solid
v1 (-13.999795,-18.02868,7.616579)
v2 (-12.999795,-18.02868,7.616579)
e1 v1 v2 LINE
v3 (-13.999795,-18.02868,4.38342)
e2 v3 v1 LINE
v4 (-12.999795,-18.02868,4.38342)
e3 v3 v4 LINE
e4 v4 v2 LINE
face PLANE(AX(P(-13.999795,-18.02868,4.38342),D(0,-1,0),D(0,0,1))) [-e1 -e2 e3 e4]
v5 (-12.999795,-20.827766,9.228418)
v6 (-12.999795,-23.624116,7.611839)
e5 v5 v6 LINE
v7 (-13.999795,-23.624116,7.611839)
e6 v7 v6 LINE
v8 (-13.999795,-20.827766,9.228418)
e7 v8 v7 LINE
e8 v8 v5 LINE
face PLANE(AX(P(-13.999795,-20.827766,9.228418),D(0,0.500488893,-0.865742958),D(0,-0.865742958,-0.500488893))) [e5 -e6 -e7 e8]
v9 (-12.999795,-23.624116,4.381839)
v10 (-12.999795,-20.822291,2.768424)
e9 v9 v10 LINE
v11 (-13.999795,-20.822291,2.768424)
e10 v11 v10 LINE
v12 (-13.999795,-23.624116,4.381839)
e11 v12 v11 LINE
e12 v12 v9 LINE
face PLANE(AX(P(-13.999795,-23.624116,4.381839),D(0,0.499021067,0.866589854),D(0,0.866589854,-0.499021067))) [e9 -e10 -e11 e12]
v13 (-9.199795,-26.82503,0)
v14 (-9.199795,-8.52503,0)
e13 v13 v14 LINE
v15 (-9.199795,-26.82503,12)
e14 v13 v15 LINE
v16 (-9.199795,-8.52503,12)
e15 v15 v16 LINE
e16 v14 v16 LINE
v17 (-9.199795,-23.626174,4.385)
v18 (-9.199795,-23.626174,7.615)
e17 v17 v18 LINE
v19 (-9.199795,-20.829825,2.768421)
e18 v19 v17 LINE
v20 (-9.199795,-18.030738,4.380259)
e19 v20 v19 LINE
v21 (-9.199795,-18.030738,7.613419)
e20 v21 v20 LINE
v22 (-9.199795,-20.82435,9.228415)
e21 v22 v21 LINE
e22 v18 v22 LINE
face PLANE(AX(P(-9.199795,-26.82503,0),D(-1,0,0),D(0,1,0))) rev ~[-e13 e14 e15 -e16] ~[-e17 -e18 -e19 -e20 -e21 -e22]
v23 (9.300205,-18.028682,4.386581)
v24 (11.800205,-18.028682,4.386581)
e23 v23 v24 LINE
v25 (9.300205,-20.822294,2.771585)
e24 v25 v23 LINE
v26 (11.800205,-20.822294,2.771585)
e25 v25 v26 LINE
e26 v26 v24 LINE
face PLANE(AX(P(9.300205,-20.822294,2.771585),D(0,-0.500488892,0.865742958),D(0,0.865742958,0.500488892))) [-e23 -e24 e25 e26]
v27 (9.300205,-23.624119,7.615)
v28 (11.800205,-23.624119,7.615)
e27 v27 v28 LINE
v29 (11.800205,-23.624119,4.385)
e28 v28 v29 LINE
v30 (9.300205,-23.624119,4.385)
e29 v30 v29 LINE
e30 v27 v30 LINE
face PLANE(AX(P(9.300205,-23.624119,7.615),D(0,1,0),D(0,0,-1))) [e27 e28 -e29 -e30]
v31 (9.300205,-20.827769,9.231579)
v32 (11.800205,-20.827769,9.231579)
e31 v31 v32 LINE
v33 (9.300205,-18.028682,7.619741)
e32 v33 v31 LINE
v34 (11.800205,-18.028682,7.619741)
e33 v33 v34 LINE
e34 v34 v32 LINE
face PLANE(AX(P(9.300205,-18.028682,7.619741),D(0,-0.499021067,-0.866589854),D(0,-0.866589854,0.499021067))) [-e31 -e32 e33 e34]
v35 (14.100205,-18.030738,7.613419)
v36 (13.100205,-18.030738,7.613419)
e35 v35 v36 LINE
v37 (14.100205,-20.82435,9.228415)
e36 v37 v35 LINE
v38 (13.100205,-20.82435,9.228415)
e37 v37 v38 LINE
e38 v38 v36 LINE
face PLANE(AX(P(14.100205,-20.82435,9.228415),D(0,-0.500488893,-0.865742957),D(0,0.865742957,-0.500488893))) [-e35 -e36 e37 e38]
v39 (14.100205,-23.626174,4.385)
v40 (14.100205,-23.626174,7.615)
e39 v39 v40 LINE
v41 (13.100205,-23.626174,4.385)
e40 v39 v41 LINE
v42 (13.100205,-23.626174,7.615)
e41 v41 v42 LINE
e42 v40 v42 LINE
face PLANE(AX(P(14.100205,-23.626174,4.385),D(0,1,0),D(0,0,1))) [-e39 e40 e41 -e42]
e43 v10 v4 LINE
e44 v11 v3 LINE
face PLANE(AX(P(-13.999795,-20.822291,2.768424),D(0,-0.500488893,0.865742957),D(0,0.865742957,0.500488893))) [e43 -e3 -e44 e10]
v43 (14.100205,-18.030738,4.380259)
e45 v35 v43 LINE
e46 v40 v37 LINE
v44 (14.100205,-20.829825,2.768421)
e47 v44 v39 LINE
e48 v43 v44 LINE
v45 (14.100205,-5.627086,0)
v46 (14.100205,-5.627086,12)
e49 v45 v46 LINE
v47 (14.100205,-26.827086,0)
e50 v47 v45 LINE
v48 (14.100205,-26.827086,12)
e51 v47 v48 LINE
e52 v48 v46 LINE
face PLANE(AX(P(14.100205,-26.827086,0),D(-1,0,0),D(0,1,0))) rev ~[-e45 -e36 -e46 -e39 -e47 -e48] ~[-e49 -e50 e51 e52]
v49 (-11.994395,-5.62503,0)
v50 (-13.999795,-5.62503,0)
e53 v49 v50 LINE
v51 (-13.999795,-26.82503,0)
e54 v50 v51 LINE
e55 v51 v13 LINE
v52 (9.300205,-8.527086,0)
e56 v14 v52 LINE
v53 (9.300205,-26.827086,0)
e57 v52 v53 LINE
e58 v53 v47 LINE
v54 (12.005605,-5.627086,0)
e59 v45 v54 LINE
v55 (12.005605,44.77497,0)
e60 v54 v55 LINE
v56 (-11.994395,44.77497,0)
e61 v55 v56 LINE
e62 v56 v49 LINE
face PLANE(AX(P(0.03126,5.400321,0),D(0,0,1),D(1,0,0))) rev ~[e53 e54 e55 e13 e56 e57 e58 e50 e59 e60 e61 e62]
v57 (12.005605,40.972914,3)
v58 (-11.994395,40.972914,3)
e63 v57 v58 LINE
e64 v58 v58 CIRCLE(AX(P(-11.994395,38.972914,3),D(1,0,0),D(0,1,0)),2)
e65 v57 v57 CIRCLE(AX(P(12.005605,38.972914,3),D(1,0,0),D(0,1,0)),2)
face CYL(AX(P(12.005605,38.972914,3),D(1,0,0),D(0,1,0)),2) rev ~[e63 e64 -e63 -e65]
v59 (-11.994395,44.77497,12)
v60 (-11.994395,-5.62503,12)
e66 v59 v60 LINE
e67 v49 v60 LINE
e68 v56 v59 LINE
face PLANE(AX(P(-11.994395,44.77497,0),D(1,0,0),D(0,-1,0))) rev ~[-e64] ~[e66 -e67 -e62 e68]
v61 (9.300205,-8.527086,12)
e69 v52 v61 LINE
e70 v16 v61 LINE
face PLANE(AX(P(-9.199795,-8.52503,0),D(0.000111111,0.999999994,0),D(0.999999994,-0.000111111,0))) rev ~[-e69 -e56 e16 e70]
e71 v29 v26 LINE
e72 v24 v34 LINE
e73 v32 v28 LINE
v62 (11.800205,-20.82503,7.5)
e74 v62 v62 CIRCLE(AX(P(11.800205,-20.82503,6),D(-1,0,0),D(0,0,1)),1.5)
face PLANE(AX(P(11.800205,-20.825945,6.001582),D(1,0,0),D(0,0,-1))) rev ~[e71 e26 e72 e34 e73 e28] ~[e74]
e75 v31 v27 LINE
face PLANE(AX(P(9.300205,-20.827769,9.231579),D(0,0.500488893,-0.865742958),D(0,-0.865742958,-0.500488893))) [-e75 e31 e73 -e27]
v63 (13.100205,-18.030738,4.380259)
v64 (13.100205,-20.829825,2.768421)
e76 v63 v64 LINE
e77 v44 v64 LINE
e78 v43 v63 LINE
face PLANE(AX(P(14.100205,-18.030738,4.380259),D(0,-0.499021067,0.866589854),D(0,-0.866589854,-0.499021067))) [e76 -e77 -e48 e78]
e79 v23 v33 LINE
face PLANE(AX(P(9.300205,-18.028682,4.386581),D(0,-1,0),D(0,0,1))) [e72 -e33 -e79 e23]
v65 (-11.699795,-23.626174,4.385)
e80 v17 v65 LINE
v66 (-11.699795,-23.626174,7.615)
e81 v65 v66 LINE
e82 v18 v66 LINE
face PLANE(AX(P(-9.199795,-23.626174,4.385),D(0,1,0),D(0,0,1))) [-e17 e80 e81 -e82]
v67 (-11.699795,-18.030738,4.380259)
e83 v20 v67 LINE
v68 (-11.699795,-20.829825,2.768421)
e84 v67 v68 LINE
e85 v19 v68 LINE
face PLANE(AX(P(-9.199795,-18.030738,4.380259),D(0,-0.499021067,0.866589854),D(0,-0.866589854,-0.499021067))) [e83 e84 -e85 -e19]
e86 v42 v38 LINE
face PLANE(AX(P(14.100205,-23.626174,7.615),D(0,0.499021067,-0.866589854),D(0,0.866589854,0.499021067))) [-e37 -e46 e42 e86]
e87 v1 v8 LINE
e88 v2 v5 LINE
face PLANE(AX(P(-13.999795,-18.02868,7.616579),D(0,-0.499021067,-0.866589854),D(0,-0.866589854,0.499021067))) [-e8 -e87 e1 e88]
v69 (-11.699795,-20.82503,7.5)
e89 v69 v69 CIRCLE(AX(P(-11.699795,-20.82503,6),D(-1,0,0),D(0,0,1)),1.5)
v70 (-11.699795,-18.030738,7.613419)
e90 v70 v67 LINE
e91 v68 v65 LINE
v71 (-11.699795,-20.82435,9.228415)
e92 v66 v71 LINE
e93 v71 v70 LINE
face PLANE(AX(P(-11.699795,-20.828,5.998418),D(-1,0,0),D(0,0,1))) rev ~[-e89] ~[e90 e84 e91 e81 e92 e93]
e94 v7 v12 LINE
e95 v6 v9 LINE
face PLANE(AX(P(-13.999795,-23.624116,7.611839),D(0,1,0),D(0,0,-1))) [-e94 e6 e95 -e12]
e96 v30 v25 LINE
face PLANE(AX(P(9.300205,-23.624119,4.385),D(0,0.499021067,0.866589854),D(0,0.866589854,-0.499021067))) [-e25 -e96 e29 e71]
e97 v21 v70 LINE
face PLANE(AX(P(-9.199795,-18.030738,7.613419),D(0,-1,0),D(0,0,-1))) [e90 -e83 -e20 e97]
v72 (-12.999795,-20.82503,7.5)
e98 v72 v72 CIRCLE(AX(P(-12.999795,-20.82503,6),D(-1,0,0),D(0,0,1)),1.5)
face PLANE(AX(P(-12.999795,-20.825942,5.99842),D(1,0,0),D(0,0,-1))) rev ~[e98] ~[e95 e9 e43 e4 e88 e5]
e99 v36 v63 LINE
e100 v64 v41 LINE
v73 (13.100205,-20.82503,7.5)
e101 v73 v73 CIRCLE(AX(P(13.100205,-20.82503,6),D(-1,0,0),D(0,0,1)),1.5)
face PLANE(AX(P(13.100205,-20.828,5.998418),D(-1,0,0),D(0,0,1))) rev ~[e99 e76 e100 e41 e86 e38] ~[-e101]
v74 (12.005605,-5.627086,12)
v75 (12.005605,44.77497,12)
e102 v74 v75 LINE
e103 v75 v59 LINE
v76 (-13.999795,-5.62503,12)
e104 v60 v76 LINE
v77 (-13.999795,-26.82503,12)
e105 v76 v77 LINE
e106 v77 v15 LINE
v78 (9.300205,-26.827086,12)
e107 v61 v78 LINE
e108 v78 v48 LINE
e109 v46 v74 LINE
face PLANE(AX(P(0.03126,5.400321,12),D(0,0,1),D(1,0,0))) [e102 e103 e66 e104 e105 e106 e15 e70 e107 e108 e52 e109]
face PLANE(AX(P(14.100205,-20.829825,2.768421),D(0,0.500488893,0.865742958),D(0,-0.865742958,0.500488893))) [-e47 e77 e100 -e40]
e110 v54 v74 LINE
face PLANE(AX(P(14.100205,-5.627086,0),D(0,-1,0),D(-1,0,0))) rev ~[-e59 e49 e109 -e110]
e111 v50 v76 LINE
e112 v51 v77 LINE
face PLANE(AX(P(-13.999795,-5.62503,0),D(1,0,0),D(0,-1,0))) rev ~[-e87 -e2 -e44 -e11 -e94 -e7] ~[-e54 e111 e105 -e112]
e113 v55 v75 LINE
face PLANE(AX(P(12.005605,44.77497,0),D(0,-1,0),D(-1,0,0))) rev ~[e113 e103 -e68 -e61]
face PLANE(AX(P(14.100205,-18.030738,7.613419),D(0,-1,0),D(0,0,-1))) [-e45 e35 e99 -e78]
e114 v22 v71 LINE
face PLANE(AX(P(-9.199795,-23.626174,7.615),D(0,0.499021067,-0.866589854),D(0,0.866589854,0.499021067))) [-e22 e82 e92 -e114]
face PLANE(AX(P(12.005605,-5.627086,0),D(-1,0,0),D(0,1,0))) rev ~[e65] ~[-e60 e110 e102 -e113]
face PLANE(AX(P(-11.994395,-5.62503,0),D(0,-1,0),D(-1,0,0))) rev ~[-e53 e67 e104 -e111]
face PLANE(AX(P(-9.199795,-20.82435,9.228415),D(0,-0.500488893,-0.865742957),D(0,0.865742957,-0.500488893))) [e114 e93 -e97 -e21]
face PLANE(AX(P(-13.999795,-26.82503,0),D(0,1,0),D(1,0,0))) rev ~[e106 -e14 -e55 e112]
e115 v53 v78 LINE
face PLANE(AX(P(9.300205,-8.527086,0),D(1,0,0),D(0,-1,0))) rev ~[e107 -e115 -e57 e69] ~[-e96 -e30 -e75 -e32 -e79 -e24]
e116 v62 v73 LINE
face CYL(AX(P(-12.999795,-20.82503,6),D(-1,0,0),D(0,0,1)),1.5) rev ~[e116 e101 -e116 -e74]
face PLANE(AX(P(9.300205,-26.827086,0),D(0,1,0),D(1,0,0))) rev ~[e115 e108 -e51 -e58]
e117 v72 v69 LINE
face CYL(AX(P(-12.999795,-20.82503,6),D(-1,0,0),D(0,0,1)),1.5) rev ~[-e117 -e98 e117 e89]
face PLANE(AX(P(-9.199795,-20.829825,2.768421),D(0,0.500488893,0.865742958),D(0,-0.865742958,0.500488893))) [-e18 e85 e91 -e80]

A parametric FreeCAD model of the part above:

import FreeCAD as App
import Part
import Sketcher
from FreeCAD import Vector


def add_polygon(sketch, points):
    """Adds a closed chain of lines whose ends are joined by coincident constraints."""
    first, n = sketch.GeometryCount, len(points)
    for a, b in zip(points, points[1:] + points[:1]):
        sketch.addGeometry(Part.LineSegment(App.Vector(*a, 0), App.Vector(*b, 0)), False)
    for i in range(n):
        sketch.addConstraint(Sketcher.Constraint("Coincident", first + i, 2, first + (i + 1) % n, 1))

doc = App.newDocument("Part")
body = doc.addObject("PartDesign::Body", "Body")

sketch1 = doc.addObject("Sketcher::SketchObject", "Sketch")
body.addObject(sketch1)
sketch1.AttachmentSupport = (doc.XY_Plane, [""])
sketch1.MapMode = "FlatFace"
add_polygon(sketch1, [(-12, 44.8), (-12, -5.6), (-14, -5.6), (-14, -26.8), (-9.2, -26.8), (-9.2, -8.5), (9.3, -8.5), (9.3, -26.8), (14.1, -26.8), (14.1, -5.6), (12, -5.6), (12, 44.8)])
sketch1.addConstraint([
    Sketcher.Constraint("Vertical", 0),
    Sketcher.Constraint("Horizontal", 1),
    Sketcher.Constraint("Vertical", 2),
    Sketcher.Constraint("Horizontal", 3),
    Sketcher.Constraint("Vertical", 4),
    Sketcher.Constraint("Vertical", 6),
    Sketcher.Constraint("Horizontal", 7),
    Sketcher.Constraint("Vertical", 8),
    Sketcher.Constraint("Horizontal", 9),
    Sketcher.Constraint("Vertical", 10),
    Sketcher.Constraint("Horizontal", 11),
    Sketcher.Constraint("Equal", 3, 7),
    Sketcher.Constraint("Equal", 4, 6),
    Sketcher.Constraint("Equal", 2, 8),
    Sketcher.Constraint("DistanceX", 11, 2, 11, 1, 24.0),
    Sketcher.Constraint("DistanceX", 3, 1, 3, 2, 4.8),
    Sketcher.Constraint("DistanceY", 0, 2, 0, 1, 50.4),
    Sketcher.Constraint("DistanceY", 2, 2, 2, 1, 21.2),
    Sketcher.Constraint("DistanceY", 4, 1, 4, 2, 18.3),
    Sketcher.Constraint("Distance", 5, 18.5),
    Sketcher.Constraint("DistanceX", 1, 2, 1, 1, 2.0054),
    Sketcher.Constraint("DistanceY", 10, 1, 10, 2, 50.402056),
    Sketcher.Constraint("DistanceY", 0, 2, -1, 1, 5.62503),
    Sketcher.Constraint("DistanceX", 0, 2, -1, 1, 11.994395),
])
pad1 = doc.addObject("PartDesign::Pad", "Pad")
body.addObject(pad1)
pad1.Profile = sketch1
pad1.Length = 12

sketch2 = doc.addObject("Sketcher::SketchObject", "Sketch001")
body.addObject(sketch2)
sketch2.AttachmentSupport = (doc.YZ_Plane, [""])
sketch2.MapMode = "FlatFace"
sketch2.AttachmentOffset = App.Placement(Vector(0, 0, 14.100205), App.Rotation())
add_polygon(sketch2, [(-23.6, 7.6), (-23.6, 4.4), (-20.8, 2.8), (-18, 4.4), (-18, 7.6), (-20.8, 9.2)])
sketch2.addConstraint([
    Sketcher.Constraint("Vertical", 0),
    Sketcher.Constraint("Vertical", 3),
    Sketcher.Constraint("Parallel", 1, 4),
    Sketcher.Constraint("Parallel", 2, 5),
    Sketcher.Constraint("Equal", 1, 2),
    Sketcher.Constraint("DistanceY", 0, 2, 0, 1, 3.23),
    Sketcher.Constraint("Distance", 1, 3.23),
    Sketcher.Constraint("DistanceY", -1, 1, 0, 2, 4.385),
    Sketcher.Constraint("DistanceY", 1, 2, 3, 2, 4.844998),
    Sketcher.Constraint("DistanceY", 3, 1, 3, 2, 3.23316),
    Sketcher.Constraint("DistanceY", -1, 1, 1, 2, 2.768421),
    Sketcher.Constraint("DistanceX", 2, 2, -1, 1, 18.030738),
])
pocket1 = doc.addObject("PartDesign::Pocket", "Pocket")
body.addObject(pocket1)
pocket1.Profile = sketch2
pocket1.Length = 1

sketch3 = doc.addObject("Sketcher::SketchObject", "Sketch002")
body.addObject(sketch3)
sketch3.AttachmentSupport = (doc.YZ_Plane, [""])
sketch3.MapMode = "FlatFace"
sketch3.AttachmentOffset = App.Placement(Vector(0, 0, -13.999795), App.Rotation())
add_polygon(sketch3, [(-23.6, 4.4), (-23.6, 7.6), (-20.8, 9.2), (-18, 7.6), (-18, 4.4), (-20.8, 2.8)])
sketch3.addConstraint([
    Sketcher.Constraint("Vertical", 0),
    Sketcher.Constraint("Vertical", 3),
    Sketcher.Constraint("Parallel", 1, 4),
    Sketcher.Constraint("Parallel", 2, 5),
    Sketcher.Constraint("Equal", 1, 2),
    Sketcher.Constraint("DistanceY", 0, 1, 0, 2, 3.23),
    Sketcher.Constraint("Distance", 1, 3.23),
    Sketcher.Constraint("DistanceY", 3, 2, 1, 2, 4.844998),
    Sketcher.Constraint("DistanceY", 3, 2, 3, 1, 3.23316),
    Sketcher.Constraint("DistanceY", -1, 1, 0, 2, 7.611839),
    Sketcher.Constraint("DistanceY", -1, 1, 1, 2, 9.228418),
    Sketcher.Constraint("DistanceX", 2, 2, -1, 1, 18.02868),
])
pocket2 = doc.addObject("PartDesign::Pocket", "Pocket001")
body.addObject(pocket2)
pocket2.Profile = sketch3
pocket2.Length = 1
pocket2.Reversed = True

sketch4 = doc.addObject("Sketcher::SketchObject", "Sketch003")
body.addObject(sketch4)
sketch4.AttachmentSupport = (doc.YZ_Plane, [""])
sketch4.MapMode = "FlatFace"
sketch4.AttachmentOffset = App.Placement(Vector(0, 0, 9.300205), App.Rotation())
add_polygon(sketch4, [(-23.6, 4.4), (-23.6, 7.6), (-20.8, 9.2), (-18, 7.6), (-18, 4.4), (-20.8, 2.8)])
sketch4.addConstraint([
    Sketcher.Constraint("Vertical", 0),
    Sketcher.Constraint("Vertical", 3),
    Sketcher.Constraint("Parallel", 1, 4),
    Sketcher.Constraint("Parallel", 2, 5),
    Sketcher.Constraint("Equal", 1, 2),
    Sketcher.Constraint("DistanceY", 0, 1, 0, 2, 3.23),
    Sketcher.Constraint("Distance", 1, 3.23),
    Sketcher.Constraint("DistanceY", -1, 1, 0, 2, 7.615),
    Sketcher.Constraint("DistanceY", 3, 2, 1, 2, 4.844998),
    Sketcher.Constraint("DistanceY", 3, 2, 3, 1, 3.23316),
    Sketcher.Constraint("DistanceX", 0, 2, -1, 1, 23.624119),
    Sketcher.Constraint("DistanceX", 1, 2, -1, 1, 20.827769),
])
pocket3 = doc.addObject("PartDesign::Pocket", "Pocket002")
body.addObject(pocket3)
pocket3.Profile = sketch4
pocket3.Length = 2.5
pocket3.Reversed = True

sketch5 = doc.addObject("Sketcher::SketchObject", "Sketch004")
body.addObject(sketch5)
sketch5.AttachmentSupport = (doc.YZ_Plane, [""])
sketch5.MapMode = "FlatFace"
sketch5.AttachmentOffset = App.Placement(Vector(0, 0, -9.199795), App.Rotation())
add_polygon(sketch5, [(-23.6, 7.6), (-23.6, 4.4), (-20.8, 2.8), (-18, 4.4), (-18, 7.6), (-20.8, 9.2)])
sketch5.addConstraint([
    Sketcher.Constraint("Vertical", 0),
    Sketcher.Constraint("Vertical", 3),
    Sketcher.Constraint("Parallel", 1, 4),
    Sketcher.Constraint("Parallel", 2, 5),
    Sketcher.Constraint("Equal", 1, 2),
    Sketcher.Constraint("DistanceY", 0, 2, 0, 1, 3.23),
    Sketcher.Constraint("Distance", 1, 3.23),
    Sketcher.Constraint("DistanceY", -1, 1, 0, 2, 4.385),
    Sketcher.Constraint("DistanceY", 1, 2, 3, 2, 4.844998),
    Sketcher.Constraint("DistanceY", 3, 1, 3, 2, 3.23316),
    Sketcher.Constraint("DistanceY", -1, 1, 1, 2, 2.768421),
    Sketcher.Constraint("DistanceX", 2, 2, -1, 1, 18.030738),
])
pocket4 = doc.addObject("PartDesign::Pocket", "Pocket003")
body.addObject(pocket4)
pocket4.Profile = sketch5
pocket4.Length = 2.5

sketch6 = doc.addObject("Sketcher::SketchObject", "Sketch005")
body.addObject(sketch6)
sketch6.AttachmentSupport = (doc.YZ_Plane, [""])
sketch6.MapMode = "FlatFace"
sketch6.AttachmentOffset = App.Placement(Vector(0, 0, -12.999795), App.Rotation())
sketch6.addGeometry(Part.Circle(Vector(-20.8, 6, 0), Vector(0, 0, 1), 1.5), False)
sketch6.addConstraint([
    Sketcher.Constraint("Diameter", 0, 3.0),
    Sketcher.Constraint("DistanceY", -1, 1, 0, 3, 6.0),
    Sketcher.Constraint("DistanceX", 0, 3, -1, 1, 20.82503),
])
pocket5 = doc.addObject("PartDesign::Pocket", "Pocket004")
body.addObject(pocket5)
pocket5.Profile = sketch6
pocket5.Type = "ThroughAll"
pocket5.Reversed = True

sketch7 = doc.addObject("Sketcher::SketchObject", "Sketch006")
body.addObject(sketch7)
sketch7.AttachmentSupport = (doc.YZ_Plane, [""])
sketch7.MapMode = "FlatFace"
sketch7.AttachmentOffset = App.Placement(Vector(0, 0, 12.005605), App.Rotation())
sketch7.addGeometry(Part.Circle(Vector(39, 3, 0), Vector(0, 0, 1), 2), False)
sketch7.addConstraint([
    Sketcher.Constraint("Diameter", 0, 4.0),
    Sketcher.Constraint("DistanceY", -1, 1, 0, 3, 3.0),
    Sketcher.Constraint("DistanceX", -1, 1, 0, 3, 38.972914),
])
pocket6 = doc.addObject("PartDesign::Pocket", "Pocket005")
body.addObject(pocket6)
pocket6.Profile = sketch7
pocket6.Type = "ThroughAll"

doc.recompute()
